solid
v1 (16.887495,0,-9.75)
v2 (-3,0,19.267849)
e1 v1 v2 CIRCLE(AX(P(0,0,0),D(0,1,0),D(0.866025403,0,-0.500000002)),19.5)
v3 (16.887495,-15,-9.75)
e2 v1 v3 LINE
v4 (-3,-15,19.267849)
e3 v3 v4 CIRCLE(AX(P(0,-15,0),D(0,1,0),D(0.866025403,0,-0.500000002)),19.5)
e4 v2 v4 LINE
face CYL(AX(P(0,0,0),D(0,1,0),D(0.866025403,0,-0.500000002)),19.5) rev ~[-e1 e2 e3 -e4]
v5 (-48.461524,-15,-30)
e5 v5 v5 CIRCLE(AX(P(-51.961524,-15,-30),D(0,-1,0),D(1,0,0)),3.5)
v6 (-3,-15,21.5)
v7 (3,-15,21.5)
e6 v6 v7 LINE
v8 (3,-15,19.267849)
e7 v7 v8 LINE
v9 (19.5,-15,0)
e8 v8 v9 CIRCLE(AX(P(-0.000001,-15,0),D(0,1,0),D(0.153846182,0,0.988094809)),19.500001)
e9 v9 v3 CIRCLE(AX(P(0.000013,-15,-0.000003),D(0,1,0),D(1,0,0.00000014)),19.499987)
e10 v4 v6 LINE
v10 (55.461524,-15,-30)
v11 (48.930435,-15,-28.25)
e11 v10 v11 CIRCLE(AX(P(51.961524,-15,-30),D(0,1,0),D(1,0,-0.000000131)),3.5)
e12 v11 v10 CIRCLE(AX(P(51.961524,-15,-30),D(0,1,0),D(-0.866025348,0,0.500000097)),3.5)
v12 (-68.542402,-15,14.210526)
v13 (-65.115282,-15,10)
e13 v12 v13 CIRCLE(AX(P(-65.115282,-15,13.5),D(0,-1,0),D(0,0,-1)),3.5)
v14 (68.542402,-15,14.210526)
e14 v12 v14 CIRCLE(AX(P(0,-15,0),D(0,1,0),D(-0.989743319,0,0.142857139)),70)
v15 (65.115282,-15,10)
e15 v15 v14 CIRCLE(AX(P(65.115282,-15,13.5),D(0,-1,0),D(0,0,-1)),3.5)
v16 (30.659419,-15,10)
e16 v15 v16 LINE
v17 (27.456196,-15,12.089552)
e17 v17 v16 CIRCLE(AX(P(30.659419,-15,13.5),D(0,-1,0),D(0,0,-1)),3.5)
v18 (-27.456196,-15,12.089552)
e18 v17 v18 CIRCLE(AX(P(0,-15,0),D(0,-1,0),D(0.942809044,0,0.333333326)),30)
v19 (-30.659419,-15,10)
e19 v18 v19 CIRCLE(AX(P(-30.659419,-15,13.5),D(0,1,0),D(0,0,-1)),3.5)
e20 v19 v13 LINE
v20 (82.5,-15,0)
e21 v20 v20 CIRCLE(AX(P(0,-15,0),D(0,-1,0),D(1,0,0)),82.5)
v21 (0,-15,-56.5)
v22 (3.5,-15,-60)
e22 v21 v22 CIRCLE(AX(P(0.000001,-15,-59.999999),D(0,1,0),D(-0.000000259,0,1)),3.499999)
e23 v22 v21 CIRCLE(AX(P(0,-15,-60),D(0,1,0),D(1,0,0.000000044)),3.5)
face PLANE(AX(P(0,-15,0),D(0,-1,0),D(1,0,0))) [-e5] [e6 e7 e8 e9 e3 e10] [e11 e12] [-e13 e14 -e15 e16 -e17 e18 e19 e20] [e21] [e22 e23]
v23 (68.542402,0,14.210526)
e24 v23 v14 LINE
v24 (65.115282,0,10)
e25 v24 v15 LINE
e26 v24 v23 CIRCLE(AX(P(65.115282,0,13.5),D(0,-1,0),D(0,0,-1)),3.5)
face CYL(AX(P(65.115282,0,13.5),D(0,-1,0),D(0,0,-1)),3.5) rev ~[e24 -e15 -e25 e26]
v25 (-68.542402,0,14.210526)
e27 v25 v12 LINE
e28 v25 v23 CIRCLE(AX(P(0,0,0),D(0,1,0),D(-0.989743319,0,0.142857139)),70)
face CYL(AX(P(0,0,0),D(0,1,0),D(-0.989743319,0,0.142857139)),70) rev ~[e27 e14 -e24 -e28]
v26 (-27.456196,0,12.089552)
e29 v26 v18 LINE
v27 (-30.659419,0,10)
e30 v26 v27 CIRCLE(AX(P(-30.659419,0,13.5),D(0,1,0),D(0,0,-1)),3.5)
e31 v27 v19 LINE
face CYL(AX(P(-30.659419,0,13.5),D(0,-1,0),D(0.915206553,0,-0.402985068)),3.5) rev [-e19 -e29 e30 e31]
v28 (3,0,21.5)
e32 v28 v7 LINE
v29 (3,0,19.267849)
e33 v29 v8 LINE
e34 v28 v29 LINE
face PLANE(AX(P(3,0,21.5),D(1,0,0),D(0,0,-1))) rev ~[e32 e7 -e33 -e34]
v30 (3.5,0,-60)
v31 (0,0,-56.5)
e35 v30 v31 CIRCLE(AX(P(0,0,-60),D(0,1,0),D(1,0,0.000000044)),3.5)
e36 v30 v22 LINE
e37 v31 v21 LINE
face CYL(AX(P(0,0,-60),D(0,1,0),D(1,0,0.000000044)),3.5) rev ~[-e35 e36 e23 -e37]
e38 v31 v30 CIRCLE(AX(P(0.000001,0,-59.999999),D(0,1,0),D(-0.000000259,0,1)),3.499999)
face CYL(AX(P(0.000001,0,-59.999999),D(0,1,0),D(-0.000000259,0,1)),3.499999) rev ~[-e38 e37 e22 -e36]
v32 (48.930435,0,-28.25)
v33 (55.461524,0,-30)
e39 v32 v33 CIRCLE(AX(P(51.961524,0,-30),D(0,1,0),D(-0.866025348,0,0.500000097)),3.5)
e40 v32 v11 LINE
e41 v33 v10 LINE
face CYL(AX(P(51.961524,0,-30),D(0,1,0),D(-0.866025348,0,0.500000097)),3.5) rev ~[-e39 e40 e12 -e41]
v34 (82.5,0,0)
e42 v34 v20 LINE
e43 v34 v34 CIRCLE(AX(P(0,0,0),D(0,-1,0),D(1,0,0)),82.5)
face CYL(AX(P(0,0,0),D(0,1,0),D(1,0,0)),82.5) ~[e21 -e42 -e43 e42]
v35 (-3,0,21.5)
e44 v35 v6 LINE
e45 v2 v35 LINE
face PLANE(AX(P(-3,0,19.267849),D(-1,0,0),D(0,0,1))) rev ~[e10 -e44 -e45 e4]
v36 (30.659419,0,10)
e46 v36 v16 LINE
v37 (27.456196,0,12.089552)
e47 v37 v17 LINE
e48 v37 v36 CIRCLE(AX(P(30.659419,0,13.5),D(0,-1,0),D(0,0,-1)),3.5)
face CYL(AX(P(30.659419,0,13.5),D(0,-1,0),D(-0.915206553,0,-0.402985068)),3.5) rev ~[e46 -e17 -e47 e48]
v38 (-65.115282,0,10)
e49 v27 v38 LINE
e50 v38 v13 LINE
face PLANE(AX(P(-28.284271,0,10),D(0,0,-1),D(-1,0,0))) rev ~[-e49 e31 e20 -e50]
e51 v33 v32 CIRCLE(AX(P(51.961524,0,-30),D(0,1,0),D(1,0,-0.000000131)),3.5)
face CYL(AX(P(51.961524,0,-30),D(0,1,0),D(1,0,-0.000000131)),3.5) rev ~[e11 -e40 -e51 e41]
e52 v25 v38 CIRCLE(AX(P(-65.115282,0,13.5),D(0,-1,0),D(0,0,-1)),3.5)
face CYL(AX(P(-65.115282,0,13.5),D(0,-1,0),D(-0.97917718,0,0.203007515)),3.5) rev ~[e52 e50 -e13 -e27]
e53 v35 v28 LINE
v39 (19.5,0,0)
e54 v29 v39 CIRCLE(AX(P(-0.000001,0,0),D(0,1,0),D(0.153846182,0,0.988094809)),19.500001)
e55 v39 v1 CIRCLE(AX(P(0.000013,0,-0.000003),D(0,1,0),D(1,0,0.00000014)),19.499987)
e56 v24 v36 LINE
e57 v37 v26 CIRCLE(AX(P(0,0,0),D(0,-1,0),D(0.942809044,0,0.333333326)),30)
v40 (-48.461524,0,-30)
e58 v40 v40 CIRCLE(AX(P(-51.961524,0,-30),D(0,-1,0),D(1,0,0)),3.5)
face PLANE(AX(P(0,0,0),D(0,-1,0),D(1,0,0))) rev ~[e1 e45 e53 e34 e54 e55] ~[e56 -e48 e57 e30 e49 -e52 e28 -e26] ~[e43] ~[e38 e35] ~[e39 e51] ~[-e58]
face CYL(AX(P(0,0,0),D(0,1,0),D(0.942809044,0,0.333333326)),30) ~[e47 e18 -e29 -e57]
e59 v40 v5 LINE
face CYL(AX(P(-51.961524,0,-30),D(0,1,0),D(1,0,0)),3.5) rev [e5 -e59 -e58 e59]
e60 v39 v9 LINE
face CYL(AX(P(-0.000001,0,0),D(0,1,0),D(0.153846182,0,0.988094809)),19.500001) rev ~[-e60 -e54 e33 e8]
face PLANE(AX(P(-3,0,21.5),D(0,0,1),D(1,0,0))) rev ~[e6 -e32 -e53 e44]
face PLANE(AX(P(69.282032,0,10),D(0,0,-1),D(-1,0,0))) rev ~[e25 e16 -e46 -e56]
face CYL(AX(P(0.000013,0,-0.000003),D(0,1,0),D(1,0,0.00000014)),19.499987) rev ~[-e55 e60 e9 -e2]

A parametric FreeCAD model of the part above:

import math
import FreeCAD as App
import Part
import Sketcher
from FreeCAD import Vector


def edges_at(feature, points):
    """Names of the edges that pass closest to the given points."""
    edges = feature.Shape.Edges
    near = lambda p: min(range(len(edges)), key=lambda i: edges[i].distToShape(Part.Vertex(*p))[0])
    return sorted({f"Edge{near(p) + 1}" for p in points})

doc = App.newDocument("Part")
body = doc.addObject("PartDesign::Body", "Body")

# Sketch on XZ plane
sketch1 = doc.addObject("Sketcher::SketchObject", "Sketch")
body.addObject(sketch1)
sketch1.AttachmentSupport = (doc.XZ_Plane, [""])
sketch1.MapMode = "FlatFace"
sketch1.addGeometry([
    Part.Circle(Vector(0, 0, 0), Vector(0, 0, 1), 82.5),  # 0
    Part.ArcOfCircle(Part.Circle(Vector(0, -60, 0), Vector(0, 0, 1), 3.5), math.radians(90), math.radians(360)),  # 1
    Part.ArcOfCircle(Part.Circle(Vector(0, -60, 0), Vector(0, 0, 1), 3.5), math.radians(0), math.radians(90)),  # 2
    Part.Circle(Vector(-52, -30, 0), Vector(0, 0, 1), 3.5),  # 3
    Part.ArcOfCircle(Part.Circle(Vector(0, 0, 0), Vector(0, 0, 1), 19.5), math.radians(0), math.radians(81)),  # 4
    Part.ArcOfCircle(Part.Circle(Vector(0, 0, 0), Vector(0, 0, 1), 19.5), math.radians(-30), math.radians(0)),  # 5
    Part.ArcOfCircle(Part.Circle(Vector(0, 0, 0), Vector(0, 0, 1), 19.5), math.radians(99), math.radians(330)),  # 6
    Part.LineSegment(Vector(-3, 19.3, 0), Vector(-3, 21.5, 0)),  # 7
    Part.LineSegment(Vector(-3, 21.5, 0), Vector(3, 21.5, 0)),  # 8
    Part.LineSegment(Vector(3, 21.5, 0), Vector(3, 19.3, 0)),  # 9
    Part.ArcOfCircle(Part.Circle(Vector(52, -30, 0), Vector(0, 0, 1), 3.5), math.radians(0), math.radians(150)),  # 10
    Part.ArcOfCircle(Part.Circle(Vector(52, -30, 0), Vector(0, 0, 1), 3.5), math.radians(150), math.radians(360)),  # 11
    Part.ArcOfCircle(Part.Circle(Vector(0, 0, 0), Vector(0, 0, 1), 30), math.radians(19), math.radians(161)),  # 12
    Part.LineSegment(Vector(-28.3, 10, 0), Vector(-69.3, 10, 0)),  # 13
    Part.ArcOfCircle(Part.Circle(Vector(0, 0, 0), Vector(0, 0, 1), 70), math.radians(8), math.radians(172)),  # 14
    Part.LineSegment(Vector(69.3, 10, 0), Vector(28.3, 10, 0)),  # 15
], False)
sketch1.addConstraint([
    Sketcher.Constraint("Tangent", 1, 1, 2, 2),
    Sketcher.Constraint("Coincident", 2, 1, 1, 2),
    Sketcher.Constraint("Tangent", 4, 1, 5, 2),
    Sketcher.Constraint("Tangent", 5, 1, 6, 2),
    Sketcher.Constraint("Coincident", 6, 1, 7, 1),
    Sketcher.Constraint("Coincident", 7, 2, 8, 1),
    Sketcher.Constraint("Coincident", 8, 2, 9, 1),
    Sketcher.Constraint("Coincident", 9, 2, 4, 2),
    Sketcher.Constraint("Tangent", 10, 1, 11, 2),
    Sketcher.Constraint("Coincident", 11, 1, 10, 2),
    Sketcher.Constraint("Coincident", 12, 2, 13, 1),
    Sketcher.Constraint("Coincident", 13, 2, 14, 2),
    Sketcher.Constraint("Coincident", 14, 1, 15, 1),
    Sketcher.Constraint("Coincident", 15, 2, 12, 1),
    Sketcher.Constraint("Vertical", 7),
    Sketcher.Constraint("Horizontal", 8),
    Sketcher.Constraint("Vertical", 9),
    Sketcher.Constraint("Horizontal", 13),
    Sketcher.Constraint("Horizontal", 15),
    Sketcher.Constraint("Coincident", 0, 3, -1, 1),
    Sketcher.Constraint("Coincident", 4, 3, -1, 1),
    Sketcher.Constraint("Coincident", 6, 3, -1, 1),
    Sketcher.Constraint("Coincident", 12, 3, -1, 1),
    Sketcher.Constraint("Coincident", 14, 3, -1, 1),
    Sketcher.Constraint("Equal", 2, 3),
    Sketcher.Constraint("Equal", 3, 10),
    Sketcher.Constraint("Symmetric", 3, 3, 10, 3, -2),
    Sketcher.Constraint("PointOnObject", 1, 3, -2),
    Sketcher.Constraint("PointOnObject", 1, 1, -2),
    Sketcher.Constraint("PointOnObject", 4, 1, -1),
    Sketcher.Constraint("Horizontal", 1, 3, 2, 1),
    Sketcher.Constraint("Horizontal", 6, 1, 9, 2),
    Sketcher.Constraint("Horizontal", 11, 3, 10, 1),
    Sketcher.Constraint("Horizontal", 13, 2, 14, 1),
    Sketcher.Constraint("Diameter", 0, 165.0),
    Sketcher.Constraint("Diameter", 3, 7.0),
    Sketcher.Constraint("Radius", 12, 30.0),
    Sketcher.Constraint("Radius", 14, 70.0),
    Sketcher.Constraint("Radius", 4, 19.500001),
    Sketcher.Constraint("DistanceX", 8, 1, 8, 2, 6.0),
    Sketcher.Constraint("DistanceY", 1, 3, -1, 1, 60.0),
    Sketcher.Constraint("DistanceY", 3, 3, -1, 1, 30.0),
    Sketcher.Constraint("DistanceY", -1, 1, 12, 2, 10.0),
    Sketcher.Constraint("DistanceY", -1, 1, 7, 2, 21.5),
    Sketcher.Constraint("DistanceY", 11, 1, 5, 1, 18.5),
    Sketcher.Constraint("DistanceY", 5, 1, -1, 1, 9.75),
    Sketcher.Constraint("DistanceX", 5, 3, 10, 3, 51.961511),
])
pad1 = doc.addObject("PartDesign::Pad", "Pad")
body.addObject(pad1)
pad1.Profile = sketch1
pad1.Length = 15
doc.recompute()

fillet = doc.addObject("PartDesign::Fillet", "Fillet")
body.addObject(fillet)
fillet.Base = (pad1, edges_at(pad1, [
    (69.282, -7.5, 10),
    (-69.282, -7.5, 10),
    (-28.284, -7.5, 10),
    (28.284, -7.5, 10),
]))
fillet.Radius = 3.5

doc.recompute()
